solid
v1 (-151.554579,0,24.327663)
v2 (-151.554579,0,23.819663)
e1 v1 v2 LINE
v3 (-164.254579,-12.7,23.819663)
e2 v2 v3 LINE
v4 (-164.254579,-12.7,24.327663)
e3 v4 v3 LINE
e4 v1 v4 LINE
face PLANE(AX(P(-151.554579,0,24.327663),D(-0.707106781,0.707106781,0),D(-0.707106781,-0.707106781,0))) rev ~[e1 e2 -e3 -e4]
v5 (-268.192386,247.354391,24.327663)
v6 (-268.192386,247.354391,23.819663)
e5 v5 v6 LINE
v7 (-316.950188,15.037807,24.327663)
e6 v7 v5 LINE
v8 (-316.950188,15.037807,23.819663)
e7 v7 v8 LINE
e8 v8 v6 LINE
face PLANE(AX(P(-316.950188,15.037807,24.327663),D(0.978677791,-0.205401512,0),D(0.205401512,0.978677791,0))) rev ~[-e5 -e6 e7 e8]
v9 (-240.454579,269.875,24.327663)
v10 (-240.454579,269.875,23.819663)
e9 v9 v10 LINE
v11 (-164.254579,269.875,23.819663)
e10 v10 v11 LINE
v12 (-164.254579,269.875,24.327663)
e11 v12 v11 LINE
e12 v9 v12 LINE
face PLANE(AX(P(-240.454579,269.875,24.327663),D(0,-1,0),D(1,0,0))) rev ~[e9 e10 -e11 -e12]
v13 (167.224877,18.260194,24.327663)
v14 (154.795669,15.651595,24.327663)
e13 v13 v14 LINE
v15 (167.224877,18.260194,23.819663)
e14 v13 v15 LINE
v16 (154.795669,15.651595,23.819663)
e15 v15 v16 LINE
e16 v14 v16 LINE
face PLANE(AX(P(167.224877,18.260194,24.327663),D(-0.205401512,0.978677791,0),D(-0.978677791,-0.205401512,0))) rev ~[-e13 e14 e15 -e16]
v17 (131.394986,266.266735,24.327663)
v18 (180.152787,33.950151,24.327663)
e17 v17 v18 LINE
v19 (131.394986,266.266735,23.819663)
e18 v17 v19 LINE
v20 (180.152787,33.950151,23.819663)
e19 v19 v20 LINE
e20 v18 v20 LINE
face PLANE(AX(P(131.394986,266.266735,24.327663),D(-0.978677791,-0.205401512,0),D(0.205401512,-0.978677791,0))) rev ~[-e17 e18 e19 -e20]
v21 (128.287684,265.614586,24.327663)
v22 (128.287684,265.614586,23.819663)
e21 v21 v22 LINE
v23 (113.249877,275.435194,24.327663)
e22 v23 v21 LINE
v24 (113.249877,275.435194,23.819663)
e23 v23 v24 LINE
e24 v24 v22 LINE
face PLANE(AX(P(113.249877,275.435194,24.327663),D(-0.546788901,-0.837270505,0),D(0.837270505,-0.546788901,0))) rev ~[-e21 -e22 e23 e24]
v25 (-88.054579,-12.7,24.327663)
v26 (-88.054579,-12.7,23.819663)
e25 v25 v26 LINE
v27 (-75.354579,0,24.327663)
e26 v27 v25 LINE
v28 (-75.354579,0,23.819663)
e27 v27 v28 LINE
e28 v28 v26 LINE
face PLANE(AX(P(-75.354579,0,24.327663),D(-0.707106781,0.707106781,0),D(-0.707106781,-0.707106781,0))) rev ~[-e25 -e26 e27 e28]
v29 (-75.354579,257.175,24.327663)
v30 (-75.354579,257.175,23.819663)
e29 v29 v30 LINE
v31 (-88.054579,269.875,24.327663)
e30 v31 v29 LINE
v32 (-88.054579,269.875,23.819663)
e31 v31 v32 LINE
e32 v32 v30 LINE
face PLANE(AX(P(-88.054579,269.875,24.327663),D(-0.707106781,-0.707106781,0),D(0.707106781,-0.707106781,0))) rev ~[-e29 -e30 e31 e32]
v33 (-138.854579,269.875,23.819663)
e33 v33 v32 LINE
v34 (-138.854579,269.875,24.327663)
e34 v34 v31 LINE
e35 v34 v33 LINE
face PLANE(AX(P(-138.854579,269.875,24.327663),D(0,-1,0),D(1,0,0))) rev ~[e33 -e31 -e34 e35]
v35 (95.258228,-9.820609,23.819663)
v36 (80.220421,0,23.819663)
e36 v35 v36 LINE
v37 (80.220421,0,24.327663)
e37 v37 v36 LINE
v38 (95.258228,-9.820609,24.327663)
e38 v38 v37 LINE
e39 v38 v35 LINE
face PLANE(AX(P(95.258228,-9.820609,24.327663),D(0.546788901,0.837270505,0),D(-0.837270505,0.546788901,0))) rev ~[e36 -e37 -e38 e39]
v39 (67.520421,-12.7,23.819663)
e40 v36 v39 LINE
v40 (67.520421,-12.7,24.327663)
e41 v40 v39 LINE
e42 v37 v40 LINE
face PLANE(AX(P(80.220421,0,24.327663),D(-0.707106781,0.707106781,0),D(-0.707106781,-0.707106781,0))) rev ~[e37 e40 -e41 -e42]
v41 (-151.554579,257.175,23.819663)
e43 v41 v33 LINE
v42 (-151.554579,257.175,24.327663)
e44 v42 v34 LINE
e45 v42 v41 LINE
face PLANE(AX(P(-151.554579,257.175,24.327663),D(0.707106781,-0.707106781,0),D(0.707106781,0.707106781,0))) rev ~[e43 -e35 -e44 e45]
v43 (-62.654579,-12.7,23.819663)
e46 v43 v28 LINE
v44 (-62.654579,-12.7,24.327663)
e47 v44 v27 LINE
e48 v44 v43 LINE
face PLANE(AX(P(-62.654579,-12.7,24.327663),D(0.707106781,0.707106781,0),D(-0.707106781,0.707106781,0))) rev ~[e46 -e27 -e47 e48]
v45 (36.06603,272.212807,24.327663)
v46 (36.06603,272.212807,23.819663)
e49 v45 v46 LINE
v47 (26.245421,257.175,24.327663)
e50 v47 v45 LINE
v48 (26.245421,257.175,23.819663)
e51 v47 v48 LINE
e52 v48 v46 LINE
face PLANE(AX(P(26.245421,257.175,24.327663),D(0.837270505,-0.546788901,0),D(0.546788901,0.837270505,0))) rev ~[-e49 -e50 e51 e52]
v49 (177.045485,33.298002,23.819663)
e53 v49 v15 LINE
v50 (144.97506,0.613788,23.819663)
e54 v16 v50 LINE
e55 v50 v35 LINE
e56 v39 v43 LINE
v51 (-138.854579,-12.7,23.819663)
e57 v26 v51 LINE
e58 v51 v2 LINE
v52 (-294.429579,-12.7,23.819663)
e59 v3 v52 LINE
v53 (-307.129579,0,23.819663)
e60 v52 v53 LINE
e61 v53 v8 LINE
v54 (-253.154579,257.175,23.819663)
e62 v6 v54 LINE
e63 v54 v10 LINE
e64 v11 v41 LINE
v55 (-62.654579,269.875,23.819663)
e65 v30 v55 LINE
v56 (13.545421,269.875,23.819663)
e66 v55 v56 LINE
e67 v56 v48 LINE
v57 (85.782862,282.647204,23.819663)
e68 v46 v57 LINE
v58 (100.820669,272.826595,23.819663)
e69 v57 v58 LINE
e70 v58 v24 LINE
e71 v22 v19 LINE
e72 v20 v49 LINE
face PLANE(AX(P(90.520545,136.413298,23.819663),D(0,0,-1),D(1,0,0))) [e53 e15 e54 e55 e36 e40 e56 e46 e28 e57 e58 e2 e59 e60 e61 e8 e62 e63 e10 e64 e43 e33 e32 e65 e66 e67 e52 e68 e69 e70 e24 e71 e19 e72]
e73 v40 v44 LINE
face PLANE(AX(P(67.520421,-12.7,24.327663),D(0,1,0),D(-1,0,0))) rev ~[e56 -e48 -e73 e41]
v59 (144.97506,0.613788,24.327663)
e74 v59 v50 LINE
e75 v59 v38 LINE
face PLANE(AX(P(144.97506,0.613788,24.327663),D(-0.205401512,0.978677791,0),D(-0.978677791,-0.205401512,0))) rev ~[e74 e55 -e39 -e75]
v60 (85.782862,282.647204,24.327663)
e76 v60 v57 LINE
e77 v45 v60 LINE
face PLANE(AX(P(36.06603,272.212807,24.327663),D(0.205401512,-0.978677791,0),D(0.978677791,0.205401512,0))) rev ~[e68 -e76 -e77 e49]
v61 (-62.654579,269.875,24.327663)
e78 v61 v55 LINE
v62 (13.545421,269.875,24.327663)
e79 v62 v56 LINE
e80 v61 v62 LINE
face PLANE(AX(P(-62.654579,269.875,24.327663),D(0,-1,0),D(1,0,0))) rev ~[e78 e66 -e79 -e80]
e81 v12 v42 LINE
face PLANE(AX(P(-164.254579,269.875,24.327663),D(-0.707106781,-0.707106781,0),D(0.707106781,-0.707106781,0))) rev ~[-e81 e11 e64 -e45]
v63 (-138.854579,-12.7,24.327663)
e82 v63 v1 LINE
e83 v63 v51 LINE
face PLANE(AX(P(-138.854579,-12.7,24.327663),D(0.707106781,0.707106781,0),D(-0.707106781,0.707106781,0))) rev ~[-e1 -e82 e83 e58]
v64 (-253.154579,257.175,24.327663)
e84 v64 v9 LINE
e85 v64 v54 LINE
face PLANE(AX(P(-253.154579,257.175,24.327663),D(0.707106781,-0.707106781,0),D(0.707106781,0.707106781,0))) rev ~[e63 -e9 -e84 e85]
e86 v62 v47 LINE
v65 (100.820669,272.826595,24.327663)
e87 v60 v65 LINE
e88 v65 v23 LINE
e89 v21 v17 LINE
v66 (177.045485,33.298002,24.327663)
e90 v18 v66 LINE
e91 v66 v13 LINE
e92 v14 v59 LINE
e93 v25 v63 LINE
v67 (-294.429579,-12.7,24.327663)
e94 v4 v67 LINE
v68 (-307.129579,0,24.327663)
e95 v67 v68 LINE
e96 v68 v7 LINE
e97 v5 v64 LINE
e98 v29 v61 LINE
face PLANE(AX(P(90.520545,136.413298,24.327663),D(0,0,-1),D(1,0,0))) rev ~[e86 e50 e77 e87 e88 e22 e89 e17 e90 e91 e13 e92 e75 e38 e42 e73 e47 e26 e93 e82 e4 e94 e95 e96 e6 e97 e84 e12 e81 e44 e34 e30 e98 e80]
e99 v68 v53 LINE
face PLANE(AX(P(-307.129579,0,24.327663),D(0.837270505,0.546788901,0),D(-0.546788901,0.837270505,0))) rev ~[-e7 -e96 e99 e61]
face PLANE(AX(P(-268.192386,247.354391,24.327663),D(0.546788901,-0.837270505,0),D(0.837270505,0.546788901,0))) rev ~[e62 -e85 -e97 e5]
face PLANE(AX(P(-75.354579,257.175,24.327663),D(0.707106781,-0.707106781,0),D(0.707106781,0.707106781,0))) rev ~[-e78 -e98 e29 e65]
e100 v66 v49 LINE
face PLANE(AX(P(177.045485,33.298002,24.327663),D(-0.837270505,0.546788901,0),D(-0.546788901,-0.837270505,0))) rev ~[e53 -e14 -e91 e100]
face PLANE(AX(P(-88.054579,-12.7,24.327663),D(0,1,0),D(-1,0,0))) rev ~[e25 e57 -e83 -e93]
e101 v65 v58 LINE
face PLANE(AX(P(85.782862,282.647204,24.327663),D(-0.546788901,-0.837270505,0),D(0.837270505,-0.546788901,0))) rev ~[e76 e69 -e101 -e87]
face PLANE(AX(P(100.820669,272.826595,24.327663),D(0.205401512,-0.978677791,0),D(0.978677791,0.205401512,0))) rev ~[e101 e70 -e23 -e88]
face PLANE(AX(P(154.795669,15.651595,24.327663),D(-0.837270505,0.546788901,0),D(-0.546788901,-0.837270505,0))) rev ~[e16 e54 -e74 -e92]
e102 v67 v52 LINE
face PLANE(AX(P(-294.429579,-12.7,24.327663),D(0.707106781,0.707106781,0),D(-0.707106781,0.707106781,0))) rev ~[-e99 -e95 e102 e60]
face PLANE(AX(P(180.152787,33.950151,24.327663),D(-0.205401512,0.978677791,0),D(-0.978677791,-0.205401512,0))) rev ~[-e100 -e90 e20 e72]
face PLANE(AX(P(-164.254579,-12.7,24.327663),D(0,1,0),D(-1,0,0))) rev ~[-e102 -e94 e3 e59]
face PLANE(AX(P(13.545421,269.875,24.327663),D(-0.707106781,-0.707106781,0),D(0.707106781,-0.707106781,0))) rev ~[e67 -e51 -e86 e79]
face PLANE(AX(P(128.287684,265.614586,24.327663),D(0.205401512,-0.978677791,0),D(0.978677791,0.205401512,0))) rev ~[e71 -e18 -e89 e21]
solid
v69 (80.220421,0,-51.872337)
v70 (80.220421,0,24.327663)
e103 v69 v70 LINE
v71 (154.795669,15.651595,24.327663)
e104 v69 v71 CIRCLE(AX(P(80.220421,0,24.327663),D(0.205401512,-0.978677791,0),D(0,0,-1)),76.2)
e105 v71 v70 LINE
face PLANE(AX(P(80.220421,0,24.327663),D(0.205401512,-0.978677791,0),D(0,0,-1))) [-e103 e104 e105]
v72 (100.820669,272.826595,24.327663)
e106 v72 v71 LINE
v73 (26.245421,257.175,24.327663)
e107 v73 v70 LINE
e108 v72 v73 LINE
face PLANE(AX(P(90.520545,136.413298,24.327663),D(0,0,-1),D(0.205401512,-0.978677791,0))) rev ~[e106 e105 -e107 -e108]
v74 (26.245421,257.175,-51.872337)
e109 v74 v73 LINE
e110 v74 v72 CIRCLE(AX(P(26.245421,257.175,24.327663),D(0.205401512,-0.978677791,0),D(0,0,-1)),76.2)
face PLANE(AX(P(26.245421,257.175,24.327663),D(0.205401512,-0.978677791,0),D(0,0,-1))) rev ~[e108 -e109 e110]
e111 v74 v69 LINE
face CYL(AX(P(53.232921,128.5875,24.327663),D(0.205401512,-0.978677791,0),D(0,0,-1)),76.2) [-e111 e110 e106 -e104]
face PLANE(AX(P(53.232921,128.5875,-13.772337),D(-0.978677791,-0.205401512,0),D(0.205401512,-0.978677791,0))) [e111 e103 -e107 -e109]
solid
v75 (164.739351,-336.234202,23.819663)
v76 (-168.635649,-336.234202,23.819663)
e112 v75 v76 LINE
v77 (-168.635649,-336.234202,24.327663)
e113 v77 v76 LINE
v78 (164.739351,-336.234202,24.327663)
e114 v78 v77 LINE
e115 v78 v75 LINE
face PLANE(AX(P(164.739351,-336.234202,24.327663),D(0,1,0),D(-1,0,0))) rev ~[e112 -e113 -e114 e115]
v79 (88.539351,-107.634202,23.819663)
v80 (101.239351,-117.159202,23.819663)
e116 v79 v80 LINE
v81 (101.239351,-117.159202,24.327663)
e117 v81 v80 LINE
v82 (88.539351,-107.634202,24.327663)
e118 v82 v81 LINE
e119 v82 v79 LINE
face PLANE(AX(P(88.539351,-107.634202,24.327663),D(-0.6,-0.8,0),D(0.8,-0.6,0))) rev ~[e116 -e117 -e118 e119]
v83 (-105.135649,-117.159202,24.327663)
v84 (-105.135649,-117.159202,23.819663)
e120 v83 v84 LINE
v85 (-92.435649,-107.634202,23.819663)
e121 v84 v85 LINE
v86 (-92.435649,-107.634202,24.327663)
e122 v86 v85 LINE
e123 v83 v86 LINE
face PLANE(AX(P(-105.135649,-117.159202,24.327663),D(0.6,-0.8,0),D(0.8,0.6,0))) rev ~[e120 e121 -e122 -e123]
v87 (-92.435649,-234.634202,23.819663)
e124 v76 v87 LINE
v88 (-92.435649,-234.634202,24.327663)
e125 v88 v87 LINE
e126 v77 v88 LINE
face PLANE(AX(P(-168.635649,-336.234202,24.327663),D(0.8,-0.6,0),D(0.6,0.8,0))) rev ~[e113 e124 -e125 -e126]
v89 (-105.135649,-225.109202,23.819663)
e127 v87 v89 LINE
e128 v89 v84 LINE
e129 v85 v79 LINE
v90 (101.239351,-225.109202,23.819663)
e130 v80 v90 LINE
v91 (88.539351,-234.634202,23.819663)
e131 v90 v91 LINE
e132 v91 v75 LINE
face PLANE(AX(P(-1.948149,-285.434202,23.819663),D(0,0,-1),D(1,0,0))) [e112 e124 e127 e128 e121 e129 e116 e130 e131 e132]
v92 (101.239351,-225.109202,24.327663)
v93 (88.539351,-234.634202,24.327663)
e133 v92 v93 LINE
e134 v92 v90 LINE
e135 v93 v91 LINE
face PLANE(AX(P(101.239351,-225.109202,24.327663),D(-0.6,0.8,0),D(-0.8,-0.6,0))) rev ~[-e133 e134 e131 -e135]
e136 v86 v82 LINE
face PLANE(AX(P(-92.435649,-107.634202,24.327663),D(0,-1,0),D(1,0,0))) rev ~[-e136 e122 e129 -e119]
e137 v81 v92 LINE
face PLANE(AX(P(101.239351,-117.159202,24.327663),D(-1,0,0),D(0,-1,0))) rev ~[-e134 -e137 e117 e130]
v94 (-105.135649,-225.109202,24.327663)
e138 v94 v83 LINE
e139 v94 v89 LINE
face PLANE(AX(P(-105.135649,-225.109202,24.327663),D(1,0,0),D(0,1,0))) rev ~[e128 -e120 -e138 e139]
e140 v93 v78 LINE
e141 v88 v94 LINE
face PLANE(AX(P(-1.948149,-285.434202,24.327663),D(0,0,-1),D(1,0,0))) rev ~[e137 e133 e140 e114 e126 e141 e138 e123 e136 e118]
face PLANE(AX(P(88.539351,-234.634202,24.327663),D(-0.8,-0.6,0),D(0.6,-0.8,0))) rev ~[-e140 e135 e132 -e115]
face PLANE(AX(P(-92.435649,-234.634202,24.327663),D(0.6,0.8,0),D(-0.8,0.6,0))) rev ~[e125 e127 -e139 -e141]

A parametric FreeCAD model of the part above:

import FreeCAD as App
import Part
import Sketcher
from FreeCAD import Vector
Q = App.Units.Quantity


def add_polygon(sketch, points):
    """Adds a closed chain of lines whose ends are joined by coincident constraints."""
    first, n = sketch.GeometryCount, len(points)
    for a, b in zip(points, points[1:] + points[:1]):
        sketch.addGeometry(Part.LineSegment(App.Vector(*a, 0), App.Vector(*b, 0)), False)
    for i in range(n):
        sketch.addConstraint(Sketcher.Constraint("Coincident", first + i, 2, first + (i + 1) % n, 1))

doc = App.newDocument("Part")
body = doc.addObject("PartDesign::Body", "Body")

# Sketch on an angled plane
sketch1 = body.newObject("Sketcher::SketchObject", "Sketch")
sketch1.Placement = App.Placement(Vector(76.835939, 16.126061, 0), App.Rotation(Vector(0.205401512, -0.978677791, 0), Vector(0, 0, 1), Vector(-0.978677791, -0.205401512, 0), "ZXY"))
add_polygon(sketch1, [(-246.300612, 24.327663), (-246.300612, -51.872337), (16.477396, -51.872337), (16.477396, 24.327663)])  # lines 0-3
sketch1.addGeometry(Part.LineSegment(Vector(-246.300612, 24.327663, 0), Vector(16.477396, 24.327663, 0)), True)  # axis
sketch1.addConstraint([
    Sketcher.Constraint("Vertical", 0),
    Sketcher.Constraint("Horizontal", 1),
    Sketcher.Constraint("Vertical", 2),
    Sketcher.Constraint("Horizontal", 3),
    Sketcher.Constraint("Horizontal", 4),
    Sketcher.Constraint("Coincident", 4, 1, 3, 2),
    Sketcher.Constraint("Vertical", 1, 2, 4, 2),
    Sketcher.Constraint("DistanceY", 0, 2, 0, 1, Q("3 in")),
    Sketcher.Constraint("DistanceX", 1, 1, 1, 2, Q("262.778007 mm")),
    Sketcher.Constraint("DistanceX", 0, 2, -1, 1, Q("246.300612 mm")),
    Sketcher.Constraint("DistanceY", 0, 2, -1, 1, Q("51.872337 mm")),
])
revolution = body.newObject("PartDesign::Revolution", "Revolution")
revolution.Profile = sketch1
revolution.ReferenceAxis = (sketch1, ["Axis0"])
revolution.Angle = 90
body2 = doc.addObject("PartDesign::Body", "Body001")

# Sketch on XY plane
sketch2 = body2.newObject("Sketcher::SketchObject", "Sketch001")
sketch2.AttachmentSupport = (doc.getObject("XY_Plane001"), [""])
sketch2.MapMode = "FlatFace"
sketch2.AttachmentOffset = App.Placement(Vector(0, 0, 24.327663), App.Rotation())
add_polygon(sketch2, [(-75.354579, 257.175), (-62.654579, 269.875), (13.545421, 269.875), (26.245421, 257.175), (36.06603, 272.212807), (85.782862, 282.647204), (100.820669, 272.826595), (113.249877, 275.435194), (128.287684, 265.614586), (131.394986, 266.266735), (180.152787, 33.950151), (177.045485, 33.298002), (167.224877, 18.260194), (154.795669, 15.651595), (144.97506, 0.613788), (95.258228, -9.820609), (80.220421, 0), (67.520421, -12.7), (-62.654579, -12.7), (-75.354579, 0), (-88.054579, -12.7), (-138.854579, -12.7), (-151.554579, 0), (-164.254579, -12.7), (-294.429579, -12.7), (-307.129579, 0), (-316.950188, 15.037807), (-268.192386, 247.354391), (-253.154579, 257.175), (-240.454579, 269.875), (-164.254579, 269.875), (-151.554579, 257.175), (-138.854579, 269.875), (-88.054579, 269.875)])  # lines 0-33
sketch2.addConstraint([
    Sketcher.Constraint("Horizontal", 1),
    Sketcher.Constraint("Horizontal", 17),
    Sketcher.Constraint("Horizontal", 20),
    Sketcher.Constraint("Horizontal", 23),
    Sketcher.Constraint("Horizontal", 29),
    Sketcher.Constraint("Horizontal", 32),
    Sketcher.Constraint("PointOnObject", 15, 2, -1),
    Sketcher.Constraint("PointOnObject", 18, 2, -1),
    Sketcher.Constraint("PointOnObject", 21, 2, -1),
    Sketcher.Constraint("PointOnObject", 24, 2, -1),
    Sketcher.Constraint("Perpendicular", 0, 2),
    Sketcher.Constraint("Perpendicular", 3, 5),
    Sketcher.Constraint("Parallel", 4, 6),
    Sketcher.Constraint("Parallel", 5, 7),
    Sketcher.Constraint("Parallel", 6, 8),
    Sketcher.Constraint("Perpendicular", 8, 9),
    Sketcher.Constraint("Perpendicular", 9, 10),
    Sketcher.Constraint("Perpendicular", 7, 11),
    Sketcher.Constraint("Parallel", 10, 12),
    Sketcher.Constraint("Parallel", 11, 13),
    Sketcher.Constraint("Parallel", 12, 14),
    Sketcher.Constraint("Perpendicular", 13, 15),
    Sketcher.Constraint("Perpendicular", 2, 16),
    Sketcher.Constraint("Perpendicular", 16, 18),
    Sketcher.Constraint("Perpendicular", 18, 19),
    Sketcher.Constraint("Perpendicular", 19, 21),
    Sketcher.Constraint("Perpendicular", 21, 22),
    Sketcher.Constraint("Perpendicular", 22, 24),
    Sketcher.Constraint("Perpendicular", 25, 27),
    Sketcher.Constraint("Perpendicular", 24, 28),
    Sketcher.Constraint("Perpendicular", 28, 30),
    Sketcher.Constraint("Perpendicular", 30, 31),
    Sketcher.Constraint("Perpendicular", 31, 33),
    Sketcher.Constraint("Horizontal", 17, 2, 19, 2),
    Sketcher.Constraint("Horizontal", 20, 2, 22, 2),
    Sketcher.Constraint("Horizontal", 2, 2, 27, 2),
    Sketcher.Constraint("Horizontal", 1, 2, 28, 2),
    Sketcher.Constraint("Horizontal", 27, 2, 30, 2),
    Sketcher.Constraint("Horizontal", 29, 2, 31, 2),
    Sketcher.Constraint("Horizontal", 30, 2, 33, 2),
    Sketcher.Constraint("Vertical", 0, 2, 17, 2),
    Sketcher.Constraint("Vertical", 22, 2, 29, 2),
    Sketcher.Constraint("Vertical", 21, 2, 30, 2),
    Sketcher.Constraint("Vertical", 20, 2, 31, 2),
    Sketcher.Constraint("Equal", 17, 23),
    Sketcher.Constraint("Equal", 1, 29),
    Sketcher.Constraint("Equal", 2, 3),
    Sketcher.Constraint("Equal", 3, 5),
    Sketcher.Constraint("Equal", 5, 7),
    Sketcher.Constraint("Equal", 8, 10),
    Sketcher.Constraint("Equal", 7, 11),
    Sketcher.Constraint("Equal", 6, 12),
    Sketcher.Constraint("Equal", 11, 13),
    Sketcher.Constraint("Equal", 4, 14),
    Sketcher.Constraint("Equal", 13, 15),
    Sketcher.Constraint("Equal", 24, 25),
    Sketcher.Constraint("Equal", 9, 26),
    Sketcher.Constraint("DistanceX", 1, 1, 1, 2, Q("3 in")),
    Sketcher.Constraint("DistanceX", 20, 2, 20, 1, Q("2 in")),
    Sketcher.Constraint("Distance", 4, Q("2 in")),
    Sketcher.Constraint("DistanceX", 19, 2, 17, 2, Q("1 in")),
    Sketcher.Constraint("Distance", 6, Q("0.5 in")),
    Sketcher.Constraint("DistanceX", 17, 2, 17, 1, Q("5.125 in")),
    Sketcher.Constraint("Distance", 8, Q("0.125 in")),
    Sketcher.Constraint("DistanceY", -1, 1, 0, 2, Q("10.625 in")),
    Sketcher.Constraint("DistanceY", -1, 1, 10, 2, Q("33.298002 mm")),
    Sketcher.Constraint("DistanceX", 25, 2, 26, 2, Q("48.757802 mm")),
    Sketcher.Constraint("DistanceX", 0, 2, -1, 1, Q("62.654579 mm")),
])
pad1 = body2.newObject("PartDesign::Pad", "Pad")
pad1.Profile = sketch2
pad1.Length = Q("0.02 in")
pad1.Reversed = True
body3 = doc.addObject("PartDesign::Body", "Body002")

# Sketch on XY plane
sketch3 = body3.newObject("Sketcher::SketchObject", "Sketch002")
sketch3.AttachmentSupport = (doc.getObject("XY_Plane002"), [""])
sketch3.MapMode = "FlatFace"
sketch3.AttachmentOffset = App.Placement(Vector(0, 0, 24.327663), App.Rotation())
add_polygon(sketch3, [(-168.635649, -336.234202), (-92.435649, -234.634202), (-105.135649, -225.109202), (-105.135649, -117.159202), (-92.435649, -107.634202), (88.539351, -107.634202), (101.239351, -117.159202), (101.239351, -225.109202), (88.539351, -234.634202), (164.739351, -336.234202)])  # lines 0-9
sketch3.addConstraint([
    Sketcher.Constraint("Vertical", 2),
    Sketcher.Constraint("Horizontal", 4),
    Sketcher.Constraint("Vertical", 6),
    Sketcher.Constraint("Horizontal", 9),
    Sketcher.Constraint("Perpendicular", 0, 1),
    Sketcher.Constraint("Parallel", 1, 5),
    Sketcher.Constraint("Parallel", 3, 7),
    Sketcher.Constraint("Perpendicular", 7, 8),
    Sketcher.Constraint("Horizontal", 2, 2, 5, 2),
    Sketcher.Constraint("Horizontal", 1, 2, 6, 2),
    Sketcher.Constraint("Horizontal", 0, 2, 7, 2),
    Sketcher.Constraint("Vertical", 0, 2, 3, 2),
    Sketcher.Constraint("Vertical", 4, 2, 7, 2),
    Sketcher.Constraint("Distance", 0, Q("5 in")),
    Sketcher.Constraint("DistanceY", 0, 2, 3, 2, Q("5 in")),
    Sketcher.Constraint("DistanceX", 7, 2, 8, 2, Q("3 in")),
    Sketcher.Constraint("DistanceY", 2, 1, 2, 2, Q("4.25 in")),
    Sketcher.Constraint("DistanceX", 4, 1, 4, 2, Q("7.125 in")),
    Sketcher.Constraint("DistanceY", 0, 2, -1, 1, Q("234.634202 mm")),
    Sketcher.Constraint("DistanceX", 0, 2, -1, 1, Q("92.435649 mm")),
])
pad2 = body3.newObject("PartDesign::Pad", "Pad001")
pad2.Profile = sketch3
pad2.Length = Q("0.02 in")
pad2.Reversed = True

doc.recompute()
